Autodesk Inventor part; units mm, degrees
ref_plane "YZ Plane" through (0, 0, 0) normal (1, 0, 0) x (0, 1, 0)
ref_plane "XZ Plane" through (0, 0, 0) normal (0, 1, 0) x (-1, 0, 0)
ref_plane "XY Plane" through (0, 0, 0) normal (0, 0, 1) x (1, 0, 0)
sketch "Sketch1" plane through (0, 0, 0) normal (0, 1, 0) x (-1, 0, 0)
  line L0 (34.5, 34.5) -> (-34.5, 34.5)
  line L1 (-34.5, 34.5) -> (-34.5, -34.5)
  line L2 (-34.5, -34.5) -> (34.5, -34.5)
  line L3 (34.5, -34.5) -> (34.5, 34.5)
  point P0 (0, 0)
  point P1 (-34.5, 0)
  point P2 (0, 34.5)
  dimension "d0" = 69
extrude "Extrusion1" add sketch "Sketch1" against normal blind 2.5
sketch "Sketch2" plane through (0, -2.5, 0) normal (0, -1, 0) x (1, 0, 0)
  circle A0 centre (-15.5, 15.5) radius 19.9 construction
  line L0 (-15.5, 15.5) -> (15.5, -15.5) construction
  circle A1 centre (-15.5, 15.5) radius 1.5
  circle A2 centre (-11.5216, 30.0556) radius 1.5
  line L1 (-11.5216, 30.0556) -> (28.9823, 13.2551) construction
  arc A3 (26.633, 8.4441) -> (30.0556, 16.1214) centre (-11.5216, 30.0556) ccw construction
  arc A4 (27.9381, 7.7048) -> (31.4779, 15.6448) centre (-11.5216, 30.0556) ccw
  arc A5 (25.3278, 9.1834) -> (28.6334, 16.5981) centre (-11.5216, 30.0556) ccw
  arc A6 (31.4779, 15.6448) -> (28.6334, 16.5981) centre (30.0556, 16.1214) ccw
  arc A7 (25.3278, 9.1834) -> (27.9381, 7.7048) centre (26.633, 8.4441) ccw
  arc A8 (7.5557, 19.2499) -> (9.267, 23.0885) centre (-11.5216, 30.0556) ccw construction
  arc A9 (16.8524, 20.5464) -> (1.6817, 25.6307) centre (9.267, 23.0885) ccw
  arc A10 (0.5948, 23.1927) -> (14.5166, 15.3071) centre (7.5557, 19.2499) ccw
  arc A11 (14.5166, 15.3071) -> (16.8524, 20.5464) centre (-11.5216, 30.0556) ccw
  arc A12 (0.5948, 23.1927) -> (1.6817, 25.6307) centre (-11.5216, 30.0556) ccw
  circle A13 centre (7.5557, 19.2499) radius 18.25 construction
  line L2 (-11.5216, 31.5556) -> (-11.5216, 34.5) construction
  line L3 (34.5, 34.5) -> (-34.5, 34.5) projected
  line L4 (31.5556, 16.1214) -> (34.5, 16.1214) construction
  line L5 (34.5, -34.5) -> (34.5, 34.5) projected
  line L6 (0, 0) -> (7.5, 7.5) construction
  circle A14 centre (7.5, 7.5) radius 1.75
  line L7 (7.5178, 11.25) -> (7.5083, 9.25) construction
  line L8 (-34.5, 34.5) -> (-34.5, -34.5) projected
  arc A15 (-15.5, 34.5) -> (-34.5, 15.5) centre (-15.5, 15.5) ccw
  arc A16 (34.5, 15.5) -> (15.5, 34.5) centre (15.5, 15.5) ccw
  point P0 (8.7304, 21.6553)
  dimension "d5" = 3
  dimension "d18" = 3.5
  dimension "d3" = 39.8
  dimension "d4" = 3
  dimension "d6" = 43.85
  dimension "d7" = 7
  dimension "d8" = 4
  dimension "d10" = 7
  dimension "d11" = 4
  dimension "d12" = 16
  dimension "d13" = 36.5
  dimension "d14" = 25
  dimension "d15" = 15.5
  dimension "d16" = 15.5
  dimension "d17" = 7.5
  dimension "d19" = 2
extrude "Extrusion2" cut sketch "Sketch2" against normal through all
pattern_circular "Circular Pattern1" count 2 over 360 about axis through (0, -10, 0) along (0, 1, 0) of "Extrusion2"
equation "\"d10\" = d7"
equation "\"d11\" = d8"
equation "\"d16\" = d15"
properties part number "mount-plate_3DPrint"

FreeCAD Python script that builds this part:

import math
import FreeCAD as App
import Part
import Sketcher
from FreeCAD import Vector

doc = App.newDocument("Part")
body = doc.addObject("PartDesign::Body", "Body")

# Sketch on XZ plane
sketch1 = body.newObject("Sketcher::SketchObject", "Sketch")
sketch1.AttachmentSupport = (doc.getObject("XZ_Plane"), [""])
sketch1.MapMode = "FlatFace"
sketch1.addGeometry([
    Part.LineSegment(Vector(-34, -34, 0), Vector(-34, 34, 0)),
    Part.LineSegment(Vector(-34, 34, 0), Vector(34, 34, 0)),
    Part.LineSegment(Vector(34, 34, 0), Vector(34, -34, 0)),
    Part.LineSegment(Vector(34, -34, 0), Vector(-34, -34, 0)),
], False)
sketch1.addConstraint([
    Sketcher.Constraint("Coincident", 0, 2, 1, 1),
    Sketcher.Constraint("Coincident", 1, 2, 2, 1),
    Sketcher.Constraint("Coincident", 2, 2, 3, 1),
    Sketcher.Constraint("Coincident", 3, 2, 0, 1),
    Sketcher.Constraint("Vertical", 0),
    Sketcher.Constraint("Horizontal", 1),
    Sketcher.Constraint("Vertical", 2),
    Sketcher.Constraint("Horizontal", 3),
    Sketcher.Constraint("Symmetric", 0, 2, 2, 2, -1, 1),
    Sketcher.Constraint("Equal", 3, 0),
    Sketcher.Constraint("DistanceX", 1, 1, 1, 2, 69.0),
])
pad1 = body.newObject("PartDesign::Pad", "Pad")
pad1.Profile = sketch1
pad1.Length = 2.5

# Sketch on XZ plane
sketch2 = body.newObject("Sketcher::SketchObject", "Sketch001")
sketch2.AttachmentSupport = (doc.getObject("XZ_Plane"), [""])
sketch2.MapMode = "FlatFace"
sketch2.AttachmentOffset = App.Placement(Vector(0, 0, 2.5), App.Rotation())
sketch2.addGeometry([
    Part.Circle(Vector(-15.5, 15.5, 0), Vector(0, 0, 1), 1.5),  # 0
    Part.Circle(Vector(-11.5216, 30.0556, 0), Vector(0, 0, 1), 1.5),  # 1
    Part.ArcOfCircle(Part.Circle(Vector(26.633, 8.4441, 0), Vector(0, 0, 1), 1.500037), math.radians(150.47163), math.radians(330.469748)),  # 2
    Part.ArcOfCircle(Part.Circle(Vector(-11.523711, 30.056665, 0), Vector(0, 0, 1), 45.352402), math.radians(-29.52798), math.radians(-18.528427)),  # 3
    Part.ArcOfCircle(Part.Circle(Vector(30.0556, 16.1214, 0), Vector(0, 0, 1), 1.500028), math.radians(-18.52554), math.radians(161.469625)),  # 4
    Part.ArcOfCircle(Part.Circle(Vector(-11.523111, 30.056362, 0), Vector(0, 0, 1), 42.351743), math.radians(-29.52793), math.radians(-18.52833)),  # 5
    Part.ArcOfCircle(Part.Circle(Vector(-11.525897, 30.057769, 0), Vector(0, 0, 1), 29.929816), math.radians(-29.527546), math.radians(-18.52927)),  # 6
    Part.ArcOfCircle(Part.Circle(Vector(9.267, 23.0885, 0), Vector(0, 0, 1), 8.000035), math.radians(-18.527579), math.radians(161.471514)),  # 7
    Part.ArcOfCircle(Part.Circle(Vector(-11.522735, 30.056173, 0), Vector(0, 0, 1), 13.926303), math.radians(-29.527577), math.radians(-18.528601)),  # 8
    Part.ArcOfCircle(Part.Circle(Vector(7.5557, 19.2499, 0), Vector(0, 0, 1), 7.999988), math.radians(150.471873), math.radians(330.471873)),  # 9
    Part.LineSegment(Vector(34.5, 15.5, 0), Vector(34.5, 34.5, 0)),  # 10
    Part.LineSegment(Vector(34.5, 34.5, 0), Vector(15.5, 34.5, 0)),  # 11
    Part.ArcOfCircle(Part.Circle(Vector(15.5, 15.5, 0), Vector(0, 0, 1), 19), math.radians(0), math.radians(90)),  # 12
    Part.ArcOfCircle(Part.Circle(Vector(-15.5, 15.5, 0), Vector(0, 0, 1), 19), math.radians(90), math.radians(180)),  # 13
    Part.LineSegment(Vector(-15.5, 34.5, 0), Vector(-34.5, 34.5, 0)),  # 14
    Part.LineSegment(Vector(-34.5, 34.5, 0), Vector(-34.5, 15.5, 0)),  # 15
    Part.Circle(Vector(7.5, 7.5, 0), Vector(0, 0, 1), 1.75),  # 16
], False)
sketch2.addConstraint([
    Sketcher.Constraint("Coincident", 2, 2, 3, 1),
    Sketcher.Constraint("Coincident", 3, 2, 4, 1),
    Sketcher.Constraint("Coincident", 4, 2, 5, 2),
    Sketcher.Constraint("Coincident", 5, 1, 2, 1),
    Sketcher.Constraint("Coincident", 6, 2, 7, 1),
    Sketcher.Constraint("Coincident", 7, 2, 8, 2),
    Sketcher.Constraint("Coincident", 8, 1, 9, 1),
    Sketcher.Constraint("Coincident", 9, 2, 6, 1),
    Sketcher.Constraint("Coincident", 10, 2, 11, 1),
    Sketcher.Constraint("Coincident", 11, 2, 12, 2),
    Sketcher.Constraint("Coincident", 12, 1, 10, 1),
    Sketcher.Constraint("Coincident", 13, 1, 14, 1),
    Sketcher.Constraint("Coincident", 14, 2, 15, 1),
    Sketcher.Constraint("Coincident", 15, 2, 13, 2),
    Sketcher.Constraint("Vertical", 10),
    Sketcher.Constraint("Horizontal", 11),
    Sketcher.Constraint("Horizontal", 14),
    Sketcher.Constraint("Vertical", 15),
    Sketcher.Constraint("Coincident", 13, 3, 0, 3),
    Sketcher.Constraint("Diameter", 0, 3.0),
    Sketcher.Constraint("Diameter", 1, 3.0),
    Sketcher.Constraint("Radius", 7, 8.0),
    Sketcher.Constraint("Radius", 9, 8.0),
    Sketcher.Constraint("Diameter", 16, 3.5),
    Sketcher.Constraint("Radius", 2, 1.5),
    Sketcher.Constraint("Radius", 4, 1.5),
    Sketcher.Constraint("Radius", 12, 19.0),
    Sketcher.Constraint("Radius", 13, 19.0),
    Sketcher.Constraint("DistanceX", 0, 3, -1, 1, 15.5),
    Sketcher.Constraint("DistanceY", -1, 1, 0, 3, 15.5),
    Sketcher.Constraint("DistanceX", -1, 1, 12, 3, 15.5),
    Sketcher.Constraint("DistanceY", -1, 1, 12, 3, 15.5),
    Sketcher.Constraint("DistanceX", -1, 1, 16, 3, 7.5),
    Sketcher.Constraint("DistanceY", -1, 1, 16, 3, 7.5),
    Sketcher.Constraint("DistanceX", -1, 1, 11, 2, 15.5),
    Sketcher.Constraint("DistanceY", -1, 1, 12, 1, 15.5),
    Sketcher.Constraint("DistanceX", 13, 1, -1, 1, 15.5),
    Sketcher.Constraint("DistanceY", -1, 1, 15, 2, 15.5),
    Sketcher.Constraint("Radius", 3, 45.3524),
    Sketcher.Constraint("Radius", 5, 42.3517),
    Sketcher.Constraint("Radius", 6, 29.9298),
    Sketcher.Constraint("Radius", 8, 13.9263),
    Sketcher.Constraint("DistanceX", 2, 3, 4, 2, 2.0003),
    Sketcher.Constraint("DistanceY", -1, 1, 9, 3, 19.25),
    Sketcher.Constraint("DistanceX", 5, 3, 7, 3, 20.79),
    Sketcher.Constraint("DistanceY", 2, 2, 3, 2, 7.94),
    Sketcher.Constraint("DistanceX", 5, 1, 3, 2, 6.15),
    Sketcher.Constraint("DistanceX", -1, 1, 2, 3, 26.633),
    Sketcher.Constraint("DistanceY", -1, 1, 2, 3, 8.444),
    Sketcher.Constraint("DistanceX", 5, 3, -1, 1, 11.523),
    Sketcher.Constraint("DistanceX", 6, 3, -1, 1, 11.526),
    Sketcher.Constraint("DistanceX", -1, 1, 3, 2, 31.478),
    Sketcher.Constraint("DistanceY", -1, 1, 9, 2, 15.307),
    Sketcher.Constraint("DistanceX", 3, 3, 1, 3, 0.002),
    Sketcher.Constraint("DistanceY", 1, 3, 3, 3, 0.001),
    Sketcher.Constraint("DistanceY", 4, 3, 5, 3, 13.935),
    Sketcher.Constraint("DistanceY", 3, 3, 6, 3, 0.001),
    Sketcher.Constraint("DistanceY", 6, 2, 7, 3, 2.542),
    Sketcher.Constraint("DistanceX", 7, 2, 9, 3, 5.874),
    Sketcher.Constraint("DistanceY", 8, 1, 7, 2, 2.438),
])
pocket1 = body.newObject("PartDesign::Pocket", "Pocket")
pocket1.Profile = sketch2
pocket1.Type = "ThroughAll"
doc.recompute()

polarpattern = body.newObject("PartDesign::PolarPattern", "PolarPattern")
polarpattern.Originals = [pocket1]
polarpattern.Axis = (doc.getObject("Y_Axis"), [""])
polarpattern.Angle = 360
polarpattern.Occurrences = 2
body.Tip = polarpattern

doc.recompute()
